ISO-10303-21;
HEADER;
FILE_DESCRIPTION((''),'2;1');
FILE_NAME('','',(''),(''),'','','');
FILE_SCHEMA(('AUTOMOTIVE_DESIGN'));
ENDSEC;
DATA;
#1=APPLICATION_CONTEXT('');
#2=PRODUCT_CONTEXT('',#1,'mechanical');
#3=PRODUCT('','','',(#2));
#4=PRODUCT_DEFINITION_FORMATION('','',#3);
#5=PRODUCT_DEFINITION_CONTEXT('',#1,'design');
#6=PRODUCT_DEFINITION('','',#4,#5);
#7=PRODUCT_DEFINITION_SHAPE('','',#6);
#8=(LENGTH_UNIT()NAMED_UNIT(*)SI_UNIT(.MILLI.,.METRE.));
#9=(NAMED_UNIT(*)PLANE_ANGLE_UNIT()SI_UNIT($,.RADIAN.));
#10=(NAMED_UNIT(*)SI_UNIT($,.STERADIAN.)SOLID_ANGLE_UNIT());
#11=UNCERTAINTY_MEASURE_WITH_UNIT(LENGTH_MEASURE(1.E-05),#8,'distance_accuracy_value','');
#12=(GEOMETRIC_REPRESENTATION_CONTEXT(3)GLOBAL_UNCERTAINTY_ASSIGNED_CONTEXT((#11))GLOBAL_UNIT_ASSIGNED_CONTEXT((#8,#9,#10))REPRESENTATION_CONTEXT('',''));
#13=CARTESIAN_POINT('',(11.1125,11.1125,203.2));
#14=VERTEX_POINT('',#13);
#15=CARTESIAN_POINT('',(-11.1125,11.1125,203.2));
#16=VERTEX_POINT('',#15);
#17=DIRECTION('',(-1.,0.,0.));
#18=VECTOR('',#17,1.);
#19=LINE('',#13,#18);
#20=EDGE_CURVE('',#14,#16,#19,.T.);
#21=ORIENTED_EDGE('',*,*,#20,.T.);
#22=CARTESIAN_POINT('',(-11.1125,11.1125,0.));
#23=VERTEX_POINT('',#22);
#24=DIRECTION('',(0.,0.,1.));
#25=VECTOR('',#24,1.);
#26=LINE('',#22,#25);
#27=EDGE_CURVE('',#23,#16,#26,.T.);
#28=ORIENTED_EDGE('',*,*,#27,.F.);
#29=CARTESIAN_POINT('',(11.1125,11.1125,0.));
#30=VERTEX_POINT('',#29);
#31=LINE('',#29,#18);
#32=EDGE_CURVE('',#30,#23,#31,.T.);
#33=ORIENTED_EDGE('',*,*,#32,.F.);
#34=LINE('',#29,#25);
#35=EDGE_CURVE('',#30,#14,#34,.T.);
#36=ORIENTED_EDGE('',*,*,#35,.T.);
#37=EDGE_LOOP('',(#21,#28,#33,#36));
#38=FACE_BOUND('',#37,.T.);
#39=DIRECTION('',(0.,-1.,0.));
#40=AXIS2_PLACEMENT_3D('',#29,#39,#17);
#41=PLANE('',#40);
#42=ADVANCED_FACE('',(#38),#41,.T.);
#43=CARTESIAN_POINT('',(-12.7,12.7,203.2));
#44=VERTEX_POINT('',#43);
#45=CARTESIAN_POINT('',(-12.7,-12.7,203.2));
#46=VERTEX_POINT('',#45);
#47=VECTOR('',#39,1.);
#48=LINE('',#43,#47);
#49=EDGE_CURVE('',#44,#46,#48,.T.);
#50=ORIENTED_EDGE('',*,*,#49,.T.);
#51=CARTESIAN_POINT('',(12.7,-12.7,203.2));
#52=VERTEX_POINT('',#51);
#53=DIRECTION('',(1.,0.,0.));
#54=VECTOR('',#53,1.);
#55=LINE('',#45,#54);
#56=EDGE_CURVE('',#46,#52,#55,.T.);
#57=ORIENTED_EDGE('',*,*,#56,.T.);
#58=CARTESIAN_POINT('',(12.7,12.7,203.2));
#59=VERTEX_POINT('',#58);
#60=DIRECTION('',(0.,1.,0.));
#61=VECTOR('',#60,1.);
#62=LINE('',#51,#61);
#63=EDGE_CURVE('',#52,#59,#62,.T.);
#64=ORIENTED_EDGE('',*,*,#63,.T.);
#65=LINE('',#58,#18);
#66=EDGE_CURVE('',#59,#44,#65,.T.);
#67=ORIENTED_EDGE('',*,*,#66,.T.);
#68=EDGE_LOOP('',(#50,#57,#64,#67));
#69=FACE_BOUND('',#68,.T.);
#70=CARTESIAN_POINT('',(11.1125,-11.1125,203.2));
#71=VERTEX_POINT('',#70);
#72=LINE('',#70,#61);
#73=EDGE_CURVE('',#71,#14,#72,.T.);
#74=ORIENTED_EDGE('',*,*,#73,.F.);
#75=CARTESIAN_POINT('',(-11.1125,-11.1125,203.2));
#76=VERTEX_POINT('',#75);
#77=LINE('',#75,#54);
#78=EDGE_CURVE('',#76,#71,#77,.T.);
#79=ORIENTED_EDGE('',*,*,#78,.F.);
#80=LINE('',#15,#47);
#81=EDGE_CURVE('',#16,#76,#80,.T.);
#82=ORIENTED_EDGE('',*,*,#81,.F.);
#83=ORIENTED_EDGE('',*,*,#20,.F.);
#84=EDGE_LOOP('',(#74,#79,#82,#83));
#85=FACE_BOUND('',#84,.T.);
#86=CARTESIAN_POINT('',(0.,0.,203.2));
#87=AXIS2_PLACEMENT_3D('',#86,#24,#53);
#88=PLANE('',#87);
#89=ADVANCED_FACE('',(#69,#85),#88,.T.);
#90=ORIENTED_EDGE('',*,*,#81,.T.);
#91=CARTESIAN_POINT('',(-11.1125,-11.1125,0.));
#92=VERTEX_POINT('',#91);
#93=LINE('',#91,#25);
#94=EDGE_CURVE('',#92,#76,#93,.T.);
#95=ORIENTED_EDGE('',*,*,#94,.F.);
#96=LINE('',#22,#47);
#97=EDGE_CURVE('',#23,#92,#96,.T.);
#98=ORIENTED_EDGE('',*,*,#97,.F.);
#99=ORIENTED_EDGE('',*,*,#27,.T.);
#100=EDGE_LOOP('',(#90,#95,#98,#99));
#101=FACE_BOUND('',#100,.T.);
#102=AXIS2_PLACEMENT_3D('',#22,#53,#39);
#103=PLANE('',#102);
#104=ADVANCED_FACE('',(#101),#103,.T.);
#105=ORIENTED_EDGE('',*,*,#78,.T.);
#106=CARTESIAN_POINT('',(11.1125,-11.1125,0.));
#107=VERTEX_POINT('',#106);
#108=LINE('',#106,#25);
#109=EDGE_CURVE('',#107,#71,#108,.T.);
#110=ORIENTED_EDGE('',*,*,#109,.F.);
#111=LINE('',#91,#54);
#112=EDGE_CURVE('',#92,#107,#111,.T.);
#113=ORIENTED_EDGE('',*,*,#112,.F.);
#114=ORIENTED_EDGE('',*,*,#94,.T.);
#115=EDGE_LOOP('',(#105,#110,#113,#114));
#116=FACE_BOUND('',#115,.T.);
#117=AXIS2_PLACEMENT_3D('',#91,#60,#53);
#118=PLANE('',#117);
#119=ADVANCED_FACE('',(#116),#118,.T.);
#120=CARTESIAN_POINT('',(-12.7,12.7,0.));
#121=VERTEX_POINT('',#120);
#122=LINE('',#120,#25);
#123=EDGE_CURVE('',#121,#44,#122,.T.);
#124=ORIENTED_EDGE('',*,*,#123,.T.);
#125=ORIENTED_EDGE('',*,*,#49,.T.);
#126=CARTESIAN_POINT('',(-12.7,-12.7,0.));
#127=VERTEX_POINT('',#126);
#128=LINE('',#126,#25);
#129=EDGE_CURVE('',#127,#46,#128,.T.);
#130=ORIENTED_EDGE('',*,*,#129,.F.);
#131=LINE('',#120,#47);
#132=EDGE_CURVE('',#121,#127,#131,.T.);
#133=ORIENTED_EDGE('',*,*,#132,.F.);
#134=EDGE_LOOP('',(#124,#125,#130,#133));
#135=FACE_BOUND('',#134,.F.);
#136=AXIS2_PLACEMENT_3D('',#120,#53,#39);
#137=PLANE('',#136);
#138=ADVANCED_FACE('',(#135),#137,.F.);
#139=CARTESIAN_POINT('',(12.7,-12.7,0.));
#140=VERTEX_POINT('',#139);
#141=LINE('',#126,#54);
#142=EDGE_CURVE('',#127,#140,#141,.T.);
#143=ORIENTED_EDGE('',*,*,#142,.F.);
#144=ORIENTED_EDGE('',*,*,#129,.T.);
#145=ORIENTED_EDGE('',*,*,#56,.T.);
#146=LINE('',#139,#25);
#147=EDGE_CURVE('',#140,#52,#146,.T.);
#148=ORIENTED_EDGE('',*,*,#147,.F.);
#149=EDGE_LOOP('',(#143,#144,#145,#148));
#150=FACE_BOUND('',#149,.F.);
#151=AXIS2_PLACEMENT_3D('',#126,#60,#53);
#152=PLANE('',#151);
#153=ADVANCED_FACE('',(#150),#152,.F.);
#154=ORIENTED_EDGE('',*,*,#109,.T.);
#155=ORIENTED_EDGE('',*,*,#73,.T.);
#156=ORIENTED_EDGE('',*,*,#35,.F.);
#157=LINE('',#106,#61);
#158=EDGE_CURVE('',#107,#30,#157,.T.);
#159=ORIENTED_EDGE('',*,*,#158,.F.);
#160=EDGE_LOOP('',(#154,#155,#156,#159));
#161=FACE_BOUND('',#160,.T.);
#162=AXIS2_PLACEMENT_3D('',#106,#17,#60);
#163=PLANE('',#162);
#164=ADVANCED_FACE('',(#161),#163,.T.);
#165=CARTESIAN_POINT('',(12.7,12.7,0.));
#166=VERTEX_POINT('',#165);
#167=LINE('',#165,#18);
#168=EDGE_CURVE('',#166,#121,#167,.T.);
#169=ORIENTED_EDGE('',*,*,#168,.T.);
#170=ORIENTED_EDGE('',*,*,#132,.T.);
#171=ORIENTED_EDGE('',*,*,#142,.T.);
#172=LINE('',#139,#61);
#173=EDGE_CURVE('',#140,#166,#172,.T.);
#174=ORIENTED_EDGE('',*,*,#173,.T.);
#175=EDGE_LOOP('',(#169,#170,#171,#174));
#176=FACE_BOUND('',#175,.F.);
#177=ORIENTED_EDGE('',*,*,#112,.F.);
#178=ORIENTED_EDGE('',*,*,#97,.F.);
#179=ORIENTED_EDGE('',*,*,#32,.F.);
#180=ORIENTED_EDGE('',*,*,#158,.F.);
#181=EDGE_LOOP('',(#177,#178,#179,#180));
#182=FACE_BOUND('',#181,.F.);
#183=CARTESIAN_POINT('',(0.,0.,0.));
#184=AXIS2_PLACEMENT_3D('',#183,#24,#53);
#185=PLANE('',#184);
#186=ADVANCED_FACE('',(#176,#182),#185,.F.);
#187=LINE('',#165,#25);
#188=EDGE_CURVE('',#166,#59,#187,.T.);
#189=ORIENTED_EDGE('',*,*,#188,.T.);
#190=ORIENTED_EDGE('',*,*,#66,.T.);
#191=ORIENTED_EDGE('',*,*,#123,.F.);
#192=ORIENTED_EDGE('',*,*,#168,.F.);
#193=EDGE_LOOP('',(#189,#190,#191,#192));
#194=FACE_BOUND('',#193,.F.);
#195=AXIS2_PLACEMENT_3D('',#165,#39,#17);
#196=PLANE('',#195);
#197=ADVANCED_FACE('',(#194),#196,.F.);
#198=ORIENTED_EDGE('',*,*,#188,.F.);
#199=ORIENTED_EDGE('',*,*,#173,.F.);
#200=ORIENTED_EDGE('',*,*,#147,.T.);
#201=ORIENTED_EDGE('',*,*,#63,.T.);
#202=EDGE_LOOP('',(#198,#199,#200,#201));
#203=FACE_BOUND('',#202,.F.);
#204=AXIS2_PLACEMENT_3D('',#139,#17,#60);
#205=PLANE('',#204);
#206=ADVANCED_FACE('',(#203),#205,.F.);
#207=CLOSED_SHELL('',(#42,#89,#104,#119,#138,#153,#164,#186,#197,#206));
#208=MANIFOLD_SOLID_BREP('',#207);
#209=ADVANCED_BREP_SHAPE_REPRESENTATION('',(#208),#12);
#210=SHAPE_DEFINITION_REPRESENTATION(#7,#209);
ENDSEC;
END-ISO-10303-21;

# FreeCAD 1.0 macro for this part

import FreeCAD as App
import Part
import Sketcher
Q = App.Units.Quantity


def add_polygon(sketch, points):
    """Adds a closed chain of lines whose ends are joined by coincident constraints."""
    first, n = sketch.GeometryCount, len(points)
    for a, b in zip(points, points[1:] + points[:1]):
        sketch.addGeometry(Part.LineSegment(App.Vector(*a, 0), App.Vector(*b, 0)), False)
    for i in range(n):
        sketch.addConstraint(Sketcher.Constraint("Coincident", first + i, 2, first + (i + 1) % n, 1))

doc = App.newDocument("Part")
params = doc.addObject("Spreadsheet::Sheet", "Params")
for row, (alias, value) in enumerate([
    ("sketch1_width", "1 in"),
    ("sketch1_width2", "0.875 in"),
    ("pad1_length", "8 in"),
], start=1):
    params.set(f"A{row}", alias)
    params.set(f"B{row}", "=" + value)
    params.setAlias(f"B{row}", alias)

body = doc.addObject("PartDesign::Body", "Body")

sketch1 = doc.addObject("Sketcher::SketchObject", "Sketch")
body.addObject(sketch1)
sketch1.AttachmentSupport = (doc.XY_Plane, [""])
sketch1.MapMode = "FlatFace"
add_polygon(sketch1, [(-12.7, 12.7), (-12.7, -12.7), (12.7, -12.7), (12.7, 12.7)])
add_polygon(sketch1, [(11.1125, -11.1125), (-11.1125, -11.1125), (-11.1125, 11.1125), (11.1125, 11.1125)])
sketch1.addConstraint([
    Sketcher.Constraint("Vertical", 0),
    Sketcher.Constraint("Horizontal", 1),
    Sketcher.Constraint("Vertical", 2),
    Sketcher.Constraint("Horizontal", 3),
    Sketcher.Constraint("Horizontal", 4),
    Sketcher.Constraint("Vertical", 5),
    Sketcher.Constraint("Horizontal", 6),
    Sketcher.Constraint("Vertical", 7),
    Sketcher.Constraint("Symmetric", 0, 2, 2, 2, -1, 1),
    Sketcher.Constraint("Symmetric", 4, 2, 6, 2, -1, 1),
    Sketcher.Constraint("Equal", 3, 0),
    Sketcher.Constraint("Equal", 6, 5),
    Sketcher.Constraint("DistanceX", 1, 1, 1, 2, Q("1 in")),
    Sketcher.Constraint("DistanceX", 4, 2, 4, 1, Q("0.875 in")),
])
sketch1.setExpression("Constraints[20]", "Params.sketch1_width")
sketch1.setExpression("Constraints[21]", "Params.sketch1_width2")
pad1 = doc.addObject("PartDesign::Pad", "Pad")
body.addObject(pad1)
pad1.Profile = sketch1
pad1.setExpression("Length", "Params.pad1_length")

doc.recompute()
